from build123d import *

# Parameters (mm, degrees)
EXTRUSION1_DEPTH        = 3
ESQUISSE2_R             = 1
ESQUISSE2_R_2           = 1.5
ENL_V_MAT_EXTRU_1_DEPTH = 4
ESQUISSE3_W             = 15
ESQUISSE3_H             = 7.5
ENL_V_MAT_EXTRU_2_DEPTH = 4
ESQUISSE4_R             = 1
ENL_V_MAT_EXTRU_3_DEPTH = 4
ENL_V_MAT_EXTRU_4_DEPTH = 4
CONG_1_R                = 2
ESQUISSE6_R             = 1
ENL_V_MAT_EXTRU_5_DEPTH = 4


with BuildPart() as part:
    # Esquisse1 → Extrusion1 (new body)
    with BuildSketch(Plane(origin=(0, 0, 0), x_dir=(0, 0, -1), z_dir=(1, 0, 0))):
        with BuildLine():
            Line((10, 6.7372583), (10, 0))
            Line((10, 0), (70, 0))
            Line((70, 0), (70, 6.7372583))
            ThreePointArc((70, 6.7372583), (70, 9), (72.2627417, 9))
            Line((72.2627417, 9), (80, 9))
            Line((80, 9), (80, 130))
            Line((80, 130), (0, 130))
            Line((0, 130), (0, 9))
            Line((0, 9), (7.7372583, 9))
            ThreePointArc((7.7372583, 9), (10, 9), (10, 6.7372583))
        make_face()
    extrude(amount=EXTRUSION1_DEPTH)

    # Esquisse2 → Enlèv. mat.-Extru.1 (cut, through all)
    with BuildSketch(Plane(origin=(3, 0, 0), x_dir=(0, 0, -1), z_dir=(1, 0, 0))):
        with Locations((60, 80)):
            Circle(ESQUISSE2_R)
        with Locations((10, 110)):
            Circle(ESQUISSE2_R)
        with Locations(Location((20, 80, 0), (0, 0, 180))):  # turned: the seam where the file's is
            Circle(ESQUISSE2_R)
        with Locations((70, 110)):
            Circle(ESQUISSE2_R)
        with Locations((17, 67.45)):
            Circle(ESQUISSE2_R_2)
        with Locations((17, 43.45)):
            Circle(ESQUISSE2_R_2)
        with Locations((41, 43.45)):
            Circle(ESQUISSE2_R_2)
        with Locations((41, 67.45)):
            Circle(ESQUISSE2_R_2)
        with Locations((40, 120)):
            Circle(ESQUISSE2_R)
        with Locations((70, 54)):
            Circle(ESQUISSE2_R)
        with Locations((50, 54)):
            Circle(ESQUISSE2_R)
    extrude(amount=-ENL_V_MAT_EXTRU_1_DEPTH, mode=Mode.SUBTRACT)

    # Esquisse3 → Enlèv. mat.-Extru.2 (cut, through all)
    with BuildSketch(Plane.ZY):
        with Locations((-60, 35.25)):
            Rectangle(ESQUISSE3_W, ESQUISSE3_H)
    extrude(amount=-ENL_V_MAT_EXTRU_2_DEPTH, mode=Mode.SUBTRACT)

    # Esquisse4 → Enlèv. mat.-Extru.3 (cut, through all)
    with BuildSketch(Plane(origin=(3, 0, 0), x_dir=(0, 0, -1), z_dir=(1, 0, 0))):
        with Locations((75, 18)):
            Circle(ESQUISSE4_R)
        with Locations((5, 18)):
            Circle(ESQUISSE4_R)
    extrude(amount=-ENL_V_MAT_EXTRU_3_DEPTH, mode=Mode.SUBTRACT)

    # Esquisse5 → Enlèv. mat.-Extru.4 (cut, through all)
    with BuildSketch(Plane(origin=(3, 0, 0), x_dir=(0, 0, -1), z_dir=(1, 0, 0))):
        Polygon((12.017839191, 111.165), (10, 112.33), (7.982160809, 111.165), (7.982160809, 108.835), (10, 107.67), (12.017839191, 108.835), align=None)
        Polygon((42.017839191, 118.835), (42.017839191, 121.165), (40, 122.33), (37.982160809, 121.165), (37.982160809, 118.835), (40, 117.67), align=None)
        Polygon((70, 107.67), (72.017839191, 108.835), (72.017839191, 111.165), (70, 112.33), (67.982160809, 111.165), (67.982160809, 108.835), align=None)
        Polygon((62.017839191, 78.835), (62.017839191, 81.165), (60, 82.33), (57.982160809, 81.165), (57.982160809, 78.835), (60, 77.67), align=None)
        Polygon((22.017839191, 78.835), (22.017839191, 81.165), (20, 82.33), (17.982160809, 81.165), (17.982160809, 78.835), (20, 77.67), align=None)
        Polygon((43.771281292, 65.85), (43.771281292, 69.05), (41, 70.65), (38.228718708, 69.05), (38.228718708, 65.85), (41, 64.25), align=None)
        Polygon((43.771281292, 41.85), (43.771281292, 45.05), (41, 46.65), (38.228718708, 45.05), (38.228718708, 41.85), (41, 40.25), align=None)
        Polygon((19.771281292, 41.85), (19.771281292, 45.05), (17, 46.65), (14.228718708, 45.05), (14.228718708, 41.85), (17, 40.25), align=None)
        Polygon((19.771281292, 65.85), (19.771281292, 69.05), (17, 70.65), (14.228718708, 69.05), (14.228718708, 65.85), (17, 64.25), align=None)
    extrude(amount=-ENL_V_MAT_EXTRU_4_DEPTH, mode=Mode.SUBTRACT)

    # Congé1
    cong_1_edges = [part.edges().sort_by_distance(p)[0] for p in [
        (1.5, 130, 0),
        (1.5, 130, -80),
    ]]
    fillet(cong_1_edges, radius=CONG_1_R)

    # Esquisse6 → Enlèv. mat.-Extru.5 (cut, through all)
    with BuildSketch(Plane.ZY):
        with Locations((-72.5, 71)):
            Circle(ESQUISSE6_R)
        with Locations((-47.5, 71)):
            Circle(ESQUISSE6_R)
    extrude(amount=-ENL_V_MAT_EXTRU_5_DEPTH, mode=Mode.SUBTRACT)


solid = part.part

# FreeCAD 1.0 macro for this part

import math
import FreeCAD as App
import Part
import Sketcher
Q = App.Units.Quantity


def edges_at(feature, points):
    """Names of the edges that pass closest to the given points."""
    edges = feature.Shape.Edges
    near = lambda p: min(range(len(edges)), key=lambda i: edges[i].distToShape(Part.Vertex(*p))[0])
    return sorted({f"Edge{near(p) + 1}" for p in points})


def add_polygon(sketch, points):
    """Adds a closed chain of lines whose ends are joined by coincident constraints."""
    first, n = sketch.GeometryCount, len(points)
    for a, b in zip(points, points[1:] + points[:1]):
        sketch.addGeometry(Part.LineSegment(App.Vector(*a, 0), App.Vector(*b, 0)), False)
    for i in range(n):
        sketch.addConstraint(Sketcher.Constraint("Coincident", first + i, 2, first + (i + 1) % n, 1))

doc = App.newDocument("Part")
body = doc.addObject("PartDesign::Body", "Body")

sketch1 = body.newObject("Sketcher::SketchObject", "Sketch")
sketch1.AttachmentSupport = (doc.getObject("YZ_Plane"), [""])
sketch1.MapMode = "FlatFace"
sketch1.addGeometry(Part.LineSegment(App.Vector(6.737258, -10, 0), App.Vector(0, -10, 0)), False)
sketch1.addGeometry(Part.LineSegment(App.Vector(0, -10, 0), App.Vector(0, -70, 0)), False)
sketch1.addGeometry(Part.LineSegment(App.Vector(0, -70, 0), App.Vector(6.737258, -70, 0)), False)
sketch1.addGeometry(Part.ArcOfCircle(Part.Circle(App.Vector(7.868629, -71.131371, 0), App.Vector(0, 0, 1), 1.6), math.radians(-45), math.radians(135)), False)
sketch1.addGeometry(Part.LineSegment(App.Vector(9, -72.262742, 0), App.Vector(9, -80, 0)), False)
sketch1.addGeometry(Part.LineSegment(App.Vector(9, -80, 0), App.Vector(130, -80, 0)), False)
sketch1.addGeometry(Part.LineSegment(App.Vector(130, -80, 0), App.Vector(130, 0, 0)), False)
sketch1.addGeometry(Part.LineSegment(App.Vector(130, 0, 0), App.Vector(9, 0, 0)), False)
sketch1.addGeometry(Part.LineSegment(App.Vector(9, 0, 0), App.Vector(9, -7.737258, 0)), False)
sketch1.addGeometry(Part.ArcOfCircle(Part.Circle(App.Vector(7.868629, -8.868629, 0), App.Vector(0, 0, 1), 1.6), math.radians(-135), math.radians(45)), False)
sketch1.addConstraint(Sketcher.Constraint("Coincident", 0, 2, 1, 1))
sketch1.addConstraint(Sketcher.Constraint("Coincident", 1, 2, 2, 1))
sketch1.addConstraint(Sketcher.Constraint("Coincident", 2, 2, 3, 2))
sketch1.addConstraint(Sketcher.Constraint("Coincident", 3, 1, 4, 1))
sketch1.addConstraint(Sketcher.Constraint("Coincident", 4, 2, 5, 1))
sketch1.addConstraint(Sketcher.Constraint("Coincident", 5, 2, 6, 1))
sketch1.addConstraint(Sketcher.Constraint("Coincident", 6, 2, 7, 1))
sketch1.addConstraint(Sketcher.Constraint("Coincident", 7, 2, 8, 1))
sketch1.addConstraint(Sketcher.Constraint("Coincident", 8, 2, 9, 2))
sketch1.addConstraint(Sketcher.Constraint("Coincident", 9, 1, 0, 1))
sketch1.addConstraint(Sketcher.Constraint("Horizontal", 0))
sketch1.addConstraint(Sketcher.Constraint("Vertical", 1))
sketch1.addConstraint(Sketcher.Constraint("Horizontal", 2))
sketch1.addConstraint(Sketcher.Constraint("Vertical", 4))
sketch1.addConstraint(Sketcher.Constraint("Horizontal", 5))
sketch1.addConstraint(Sketcher.Constraint("Vertical", 6))
sketch1.addConstraint(Sketcher.Constraint("Horizontal", 7))
sketch1.addConstraint(Sketcher.Constraint("Vertical", 8))
sketch1.addConstraint(Sketcher.Constraint("Equal", 3, 9))
sketch1.addConstraint(Sketcher.Constraint("PointOnObject", 0, 2, -2))
sketch1.addConstraint(Sketcher.Constraint("PointOnObject", 6, 2, -1))
sketch1.addConstraint(Sketcher.Constraint("Vertical", 3, 3, 9, 3))
sketch1.addConstraint(Sketcher.Constraint("Vertical", 4, 2, 7, 2))
sketch1.addConstraint(Sketcher.Constraint("Vertical", 2, 2, 9, 1))
sketch1.addConstraint(Sketcher.Constraint("Equal", 4, 8))
sketch1.addConstraint(Sketcher.Constraint("Radius", 3, 1.6))
sketch1.addConstraint(Sketcher.Constraint("DistanceX", 5, 1, 5, 2, 121.0))
sketch1.addConstraint(Sketcher.Constraint("DistanceY", 1, 2, 1, 1, 60.0))
sketch1.addConstraint(Sketcher.Constraint("DistanceY", 6, 1, 6, 2, 80.0))
sketch1.addConstraint(Sketcher.Constraint("DistanceX", -1, 1, 3, 1, 9.0))
sketch1.addConstraint(Sketcher.Constraint("DistanceX", 0, 2, 0, 1, 6.737258))
sketch1.addConstraint(Sketcher.Constraint("DistanceX", -1, 1, 3, 3, 7.868629))
pad1 = body.newObject("PartDesign::Pad", "Pad")
pad1.Profile = sketch1
pad1.Length = 3

sketch2 = body.newObject("Sketcher::SketchObject", "Sketch001")
sketch2.AttachmentSupport = (doc.getObject("YZ_Plane"), [""])
sketch2.MapMode = "FlatFace"
sketch2.AttachmentOffset = App.Placement(App.Vector(0, 0, 3), App.Rotation())
sketch2.addGeometry(Part.Circle(App.Vector(80, -60, 0), App.Vector(0, 0, 1), 1), False)
sketch2.addGeometry(Part.Circle(App.Vector(110, -10, 0), App.Vector(0, 0, 1), 1), False)
sketch2.addGeometry(Part.Circle(App.Vector(80, -20, 0), App.Vector(0, 0, 1), 1), False)
sketch2.addGeometry(Part.Circle(App.Vector(110, -70, 0), App.Vector(0, 0, 1), 1), False)
sketch2.addGeometry(Part.Circle(App.Vector(67.45, -17, 0), App.Vector(0, 0, 1), 1.5), False)
sketch2.addGeometry(Part.Circle(App.Vector(43.45, -17, 0), App.Vector(0, 0, 1), 1.5), False)
sketch2.addGeometry(Part.Circle(App.Vector(43.45, -41, 0), App.Vector(0, 0, 1), 1.5), False)
sketch2.addGeometry(Part.Circle(App.Vector(67.45, -41, 0), App.Vector(0, 0, 1), 1.5), False)
sketch2.addGeometry(Part.Circle(App.Vector(120, -40, 0), App.Vector(0, 0, 1), 1), False)
sketch2.addGeometry(Part.Circle(App.Vector(54, -70, 0), App.Vector(0, 0, 1), 1), False)
sketch2.addGeometry(Part.Circle(App.Vector(54, -50, 0), App.Vector(0, 0, 1), 1), False)
sketch2.addConstraint(Sketcher.Constraint("Equal", 0, 1))
sketch2.addConstraint(Sketcher.Constraint("Equal", 1, 2))
sketch2.addConstraint(Sketcher.Constraint("Equal", 2, 3))
sketch2.addConstraint(Sketcher.Constraint("Equal", 4, 5))
sketch2.addConstraint(Sketcher.Constraint("Equal", 5, 6))
sketch2.addConstraint(Sketcher.Constraint("Equal", 6, 7))
sketch2.addConstraint(Sketcher.Constraint("Equal", 3, 8))
sketch2.addConstraint(Sketcher.Constraint("Equal", 8, 9))
sketch2.addConstraint(Sketcher.Constraint("Equal", 9, 10))
sketch2.addConstraint(Sketcher.Constraint("Horizontal", 4, 3, 5, 3))
sketch2.addConstraint(Sketcher.Constraint("Horizontal", 6, 3, 7, 3))
sketch2.addConstraint(Sketcher.Constraint("Horizontal", 3, 3, 9, 3))
sketch2.addConstraint(Sketcher.Constraint("Vertical", 0, 3, 2, 3))
sketch2.addConstraint(Sketcher.Constraint("Vertical", 1, 3, 3, 3))
sketch2.addConstraint(Sketcher.Constraint("Vertical", 5, 3, 6, 3))
sketch2.addConstraint(Sketcher.Constraint("Vertical", 4, 3, 7, 3))
sketch2.addConstraint(Sketcher.Constraint("Vertical", 9, 3, 10, 3))
sketch2.addConstraint(Sketcher.Constraint("Diameter", 0, 2.0))
sketch2.addConstraint(Sketcher.Constraint("Diameter", 4, 3.0))
sketch2.addConstraint(Sketcher.Constraint("DistanceX", -1, 1, 0, 3, 80.0))
sketch2.addConstraint(Sketcher.Constraint("DistanceY", 0, 3, -1, 1, 60.0))
sketch2.addConstraint(Sketcher.Constraint("DistanceX", -1, 1, 1, 3, 110.0))
sketch2.addConstraint(Sketcher.Constraint("DistanceY", 1, 3, -1, 1, 10.0))
sketch2.addConstraint(Sketcher.Constraint("DistanceY", 2, 3, -1, 1, 20.0))
sketch2.addConstraint(Sketcher.Constraint("DistanceY", 3, 3, -1, 1, 70.0))
sketch2.addConstraint(Sketcher.Constraint("DistanceY", 4, 3, -1, 1, 17.0))
sketch2.addConstraint(Sketcher.Constraint("DistanceY", 6, 3, -1, 1, 41.0))
sketch2.addConstraint(Sketcher.Constraint("DistanceX", -1, 1, 8, 3, 120.0))
sketch2.addConstraint(Sketcher.Constraint("DistanceY", 8, 3, -1, 1, 40.0))
sketch2.addConstraint(Sketcher.Constraint("DistanceX", -1, 1, 9, 3, 54.0))
sketch2.addConstraint(Sketcher.Constraint("DistanceY", 10, 3, -1, 1, 50.0))
sketch2.addConstraint(Sketcher.Constraint("DistanceX", 5, 3, 4, 3, 24.0))
sketch2.addConstraint(Sketcher.Constraint("DistanceX", -1, 1, 4, 3, 67.45))
pocket1 = body.newObject("PartDesign::Pocket", "Pocket")
pocket1.Profile = sketch2
pocket1.Type = "ThroughAll"

sketch3 = body.newObject("Sketcher::SketchObject", "Sketch002")
sketch3.AttachmentSupport = (doc.getObject("YZ_Plane"), [""])
sketch3.MapMode = "FlatFace"
add_polygon(sketch3, [(39, -67.5), (31.5, -67.5), (31.5, -52.5), (39, -52.5)])
sketch3.addConstraint(Sketcher.Constraint("Horizontal", 0))
sketch3.addConstraint(Sketcher.Constraint("Vertical", 1))
sketch3.addConstraint(Sketcher.Constraint("Horizontal", 2))
sketch3.addConstraint(Sketcher.Constraint("Vertical", 3))
sketch3.addConstraint(Sketcher.Constraint("DistanceY", 1, 1, 1, 2, 15.0))
sketch3.addConstraint(Sketcher.Constraint("DistanceX", 0, 2, 0, 1, 7.5))
sketch3.addConstraint(Sketcher.Constraint("DistanceX", -1, 1, 2, 2, 39.0))
sketch3.addConstraint(Sketcher.Constraint("DistanceY", 0, 2, -1, 1, 67.5))
pocket2 = body.newObject("PartDesign::Pocket", "Pocket001")
pocket2.Profile = sketch3
pocket2.Type = "ThroughAll"
pocket2.Reversed = True

sketch4 = body.newObject("Sketcher::SketchObject", "Sketch003")
sketch4.AttachmentSupport = (doc.getObject("YZ_Plane"), [""])
sketch4.MapMode = "FlatFace"
sketch4.AttachmentOffset = App.Placement(App.Vector(0, 0, 3), App.Rotation())
sketch4.addGeometry(Part.Circle(App.Vector(18, -75, 0), App.Vector(0, 0, 1), 1), False)
sketch4.addGeometry(Part.Circle(App.Vector(18, -5, 0), App.Vector(0, 0, 1), 1), False)
sketch4.addConstraint(Sketcher.Constraint("Equal", 0, 1))
sketch4.addConstraint(Sketcher.Constraint("Vertical", 0, 3, 1, 3))
sketch4.addConstraint(Sketcher.Constraint("Diameter", 0, 2.0))
sketch4.addConstraint(Sketcher.Constraint("DistanceX", -1, 1, 0, 3, 18.0))
sketch4.addConstraint(Sketcher.Constraint("DistanceY", 0, 3, -1, 1, 75.0))
sketch4.addConstraint(Sketcher.Constraint("DistanceY", 1, 3, -1, 1, 5.0))
pocket3 = body.newObject("PartDesign::Pocket", "Pocket002")
pocket3.Profile = sketch4
pocket3.Type = "ThroughAll"

sketch5 = body.newObject("Sketcher::SketchObject", "Sketch004")
sketch5.AttachmentSupport = (doc.getObject("YZ_Plane"), [""])
sketch5.MapMode = "FlatFace"
sketch5.AttachmentOffset = App.Placement(App.Vector(0, 0, 3), App.Rotation())
add_polygon(sketch5, [(111.165, -12.017839), (112.33, -10), (111.165, -7.982161), (108.835, -7.982161), (107.67, -10), (108.835, -12.017839)])
add_polygon(sketch5, [(118.835, -42.017839), (121.165, -42.017839), (122.33, -40), (121.165, -37.982161), (118.835, -37.982161), (117.67, -40)])
add_polygon(sketch5, [(107.67, -70), (108.835, -72.017839), (111.165, -72.017839), (112.33, -70), (111.165, -67.982161), (108.835, -67.982161)])
add_polygon(sketch5, [(78.835, -62.017839), (81.165, -62.017839), (82.33, -60), (81.165, -57.982161), (78.835, -57.982161), (77.67, -60)])
add_polygon(sketch5, [(78.835, -22.017839), (81.165, -22.017839), (82.33, -20), (81.165, -17.982161), (78.835, -17.982161), (77.67, -20)])
add_polygon(sketch5, [(65.85, -43.771281), (69.05, -43.771281), (70.65, -41), (69.05, -38.228719), (65.85, -38.228719), (64.25, -41)])
add_polygon(sketch5, [(41.85, -43.771281), (45.05, -43.771281), (46.65, -41), (45.05, -38.228719), (41.85, -38.228719), (40.25, -41)])
add_polygon(sketch5, [(41.85, -19.771281), (45.05, -19.771281), (46.65, -17), (45.05, -14.228719), (41.85, -14.228719), (40.25, -17)])
add_polygon(sketch5, [(65.85, -19.771281), (69.05, -19.771281), (70.65, -17), (69.05, -14.228719), (65.85, -14.228719), (64.25, -17)])
sketch5.addConstraint(Sketcher.Constraint("Horizontal", 2))
sketch5.addConstraint(Sketcher.Constraint("Horizontal", 5))
sketch5.addConstraint(Sketcher.Constraint("Horizontal", 6))
sketch5.addConstraint(Sketcher.Constraint("Horizontal", 9))
sketch5.addConstraint(Sketcher.Constraint("Horizontal", 13))
sketch5.addConstraint(Sketcher.Constraint("Horizontal", 16))
sketch5.addConstraint(Sketcher.Constraint("Horizontal", 18))
sketch5.addConstraint(Sketcher.Constraint("Horizontal", 21))
sketch5.addConstraint(Sketcher.Constraint("Horizontal", 24))
sketch5.addConstraint(Sketcher.Constraint("Horizontal", 27))
sketch5.addConstraint(Sketcher.Constraint("Horizontal", 30))
sketch5.addConstraint(Sketcher.Constraint("Horizontal", 33))
sketch5.addConstraint(Sketcher.Constraint("Horizontal", 36))
sketch5.addConstraint(Sketcher.Constraint("Horizontal", 39))
sketch5.addConstraint(Sketcher.Constraint("Horizontal", 42))
sketch5.addConstraint(Sketcher.Constraint("Horizontal", 45))
sketch5.addConstraint(Sketcher.Constraint("Horizontal", 48))
sketch5.addConstraint(Sketcher.Constraint("Horizontal", 51))
sketch5.addConstraint(Sketcher.Constraint("Parallel", 0, 3))
sketch5.addConstraint(Sketcher.Constraint("Parallel", 1, 4))
sketch5.addConstraint(Sketcher.Constraint("Parallel", 3, 7))
sketch5.addConstraint(Sketcher.Constraint("Parallel", 4, 8))
sketch5.addConstraint(Sketcher.Constraint("Parallel", 7, 10))
sketch5.addConstraint(Sketcher.Constraint("Parallel", 8, 11))
sketch5.addConstraint(Sketcher.Constraint("Parallel", 11, 12))
sketch5.addConstraint(Sketcher.Constraint("Parallel", 10, 14))
sketch5.addConstraint(Sketcher.Constraint("Parallel", 12, 15))
sketch5.addConstraint(Sketcher.Constraint("Parallel", 14, 17))
sketch5.addConstraint(Sketcher.Constraint("Parallel", 17, 19))
sketch5.addConstraint(Sketcher.Constraint("Parallel", 15, 20))
sketch5.addConstraint(Sketcher.Constraint("Parallel", 19, 22))
sketch5.addConstraint(Sketcher.Constraint("Parallel", 20, 23))
sketch5.addConstraint(Sketcher.Constraint("Parallel", 22, 25))
sketch5.addConstraint(Sketcher.Constraint("Parallel", 23, 26))
sketch5.addConstraint(Sketcher.Constraint("Parallel", 25, 28))
sketch5.addConstraint(Sketcher.Constraint("Parallel", 26, 29))
sketch5.addConstraint(Sketcher.Constraint("Parallel", 28, 31))
sketch5.addConstraint(Sketcher.Constraint("Parallel", 29, 32))
sketch5.addConstraint(Sketcher.Constraint("Parallel", 31, 34))
sketch5.addConstraint(Sketcher.Constraint("Parallel", 32, 35))
sketch5.addConstraint(Sketcher.Constraint("Parallel", 34, 37))
sketch5.addConstraint(Sketcher.Constraint("Parallel", 35, 38))
sketch5.addConstraint(Sketcher.Constraint("Parallel", 37, 40))
sketch5.addConstraint(Sketcher.Constraint("Parallel", 38, 41))
sketch5.addConstraint(Sketcher.Constraint("Parallel", 40, 43))
sketch5.addConstraint(Sketcher.Constraint("Parallel", 41, 44))
sketch5.addConstraint(Sketcher.Constraint("Parallel", 43, 46))
sketch5.addConstraint(Sketcher.Constraint("Parallel", 44, 47))
sketch5.addConstraint(Sketcher.Constraint("Parallel", 46, 49))
sketch5.addConstraint(Sketcher.Constraint("Parallel", 47, 50))
sketch5.addConstraint(Sketcher.Constraint("Parallel", 49, 52))
sketch5.addConstraint(Sketcher.Constraint("Parallel", 50, 53))
sketch5.addConstraint(Sketcher.Constraint("Horizontal", 0, 2, 3, 2))
sketch5.addConstraint(Sketcher.Constraint("Horizontal", 7, 2, 10, 2))
sketch5.addConstraint(Sketcher.Constraint("Horizontal", 14, 2, 17, 2))
sketch5.addConstraint(Sketcher.Constraint("Horizontal", 19, 2, 22, 2))
sketch5.addConstraint(Sketcher.Constraint("Horizontal", 25, 2, 28, 2))
sketch5.addConstraint(Sketcher.Constraint("Horizontal", 31, 2, 34, 2))
sketch5.addConstraint(Sketcher.Constraint("Horizontal", 35, 2, 36, 2))
sketch5.addConstraint(Sketcher.Constraint("Horizontal", 34, 2, 37, 2))
sketch5.addConstraint(Sketcher.Constraint("Horizontal", 33, 2, 38, 2))
sketch5.addConstraint(Sketcher.Constraint("Horizontal", 37, 2, 40, 2))
sketch5.addConstraint(Sketcher.Constraint("Horizontal", 43, 2, 46, 2))
sketch5.addConstraint(Sketcher.Constraint("Horizontal", 47, 2, 48, 2))
sketch5.addConstraint(Sketcher.Constraint("Horizontal", 46, 2, 49, 2))
sketch5.addConstraint(Sketcher.Constraint("Horizontal", 45, 2, 50, 2))
sketch5.addConstraint(Sketcher.Constraint("Horizontal", 49, 2, 52, 2))
sketch5.addConstraint(Sketcher.Constraint("Vertical", 2, 2, 4, 2))
sketch5.addConstraint(Sketcher.Constraint("Vertical", 1, 2, 5, 2))
sketch5.addConstraint(Sketcher.Constraint("Vertical", 6, 2, 8, 2))
sketch5.addConstraint(Sketcher.Constraint("Vertical", 4, 2, 12, 2))
sketch5.addConstraint(Sketcher.Constraint("Vertical", 5, 2, 13, 2))
sketch5.addConstraint(Sketcher.Constraint("Vertical", 0, 2, 14, 2))
sketch5.addConstraint(Sketcher.Constraint("Vertical", 13, 2, 15, 2))
sketch5.addConstraint(Sketcher.Constraint("Vertical", 18, 2, 20, 2))
sketch5.addConstraint(Sketcher.Constraint("Vertical", 20, 2, 24, 2))
sketch5.addConstraint(Sketcher.Constraint("Vertical", 19, 2, 25, 2))
sketch5.addConstraint(Sketcher.Constraint("Vertical", 24, 2, 26, 2))
sketch5.addConstraint(Sketcher.Constraint("Vertical", 23, 2, 27, 2))
sketch5.addConstraint(Sketcher.Constraint("Vertical", 30, 2, 32, 2))
sketch5.addConstraint(Sketcher.Constraint("Vertical", 38, 2, 42, 2))
sketch5.addConstraint(Sketcher.Constraint("Vertical", 37, 2, 43, 2))
sketch5.addConstraint(Sketcher.Constraint("Vertical", 42, 2, 44, 2))
sketch5.addConstraint(Sketcher.Constraint("Vertical", 41, 2, 45, 2))
sketch5.addConstraint(Sketcher.Constraint("Vertical", 32, 2, 48, 2))
sketch5.addConstraint(Sketcher.Constraint("Vertical", 35, 2, 51, 2))
sketch5.addConstraint(Sketcher.Constraint("Equal", 5, 6))
sketch5.addConstraint(Sketcher.Constraint("Equal", 16, 18))
sketch5.addConstraint(Sketcher.Constraint("Equal", 33, 36))
sketch5.addConstraint(Sketcher.Constraint("Equal", 4, 7))
sketch5.addConstraint(Sketcher.Constraint("Equal", 17, 19))
sketch5.addConstraint(Sketcher.Constraint("Angle", 0, Q("60 deg")))
sketch5.addConstraint(Sketcher.Constraint("DistanceX", 30, 1, 30, 2, 3.2))
sketch5.addConstraint(Sketcher.Constraint("DistanceY", 0, 2, -1, 1, 10.0))
sketch5.addConstraint(Sketcher.Constraint("DistanceY", 7, 2, -1, 1, 40.0))
sketch5.addConstraint(Sketcher.Constraint("DistanceY", 14, 2, -1, 1, 70.0))
sketch5.addConstraint(Sketcher.Constraint("DistanceY", 19, 2, -1, 1, 60.0))
sketch5.addConstraint(Sketcher.Constraint("DistanceY", 25, 2, -1, 1, 20.0))
sketch5.addConstraint(Sketcher.Constraint("DistanceY", 31, 2, -1, 1, 41.0))
sketch5.addConstraint(Sketcher.Constraint("DistanceY", 43, 2, -1, 1, 17.0))
sketch5.addConstraint(Sketcher.Constraint("DistanceX", 5, 2, 6, 2, 10.0))
sketch5.addConstraint(Sketcher.Constraint("DistanceX", 18, 2, 15, 2, 30.0))
sketch5.addConstraint(Sketcher.Constraint("DistanceX", 36, 2, 30, 2, 24.0))
sketch5.addConstraint(Sketcher.Constraint("Distance", 31, 3.2))
sketch5.addConstraint(Sketcher.Constraint("DistanceX", 2, 2, 2, 1, 2.33))
sketch5.addConstraint(Sketcher.Constraint("Distance", 0, 2.33))
sketch5.addConstraint(Sketcher.Constraint("DistanceX", -1, 1, 0, 2, 112.33))
sketch5.addConstraint(Sketcher.Constraint("DistanceX", -1, 1, 30, 2, 69.05))
pocket4 = body.newObject("PartDesign::Pocket", "Pocket003")
pocket4.Profile = sketch5
pocket4.Type = "ThroughAll"
doc.recompute()

fillet = body.newObject("PartDesign::Fillet", "Fillet")
fillet.Base = (pocket4, edges_at(pocket4, [(1.5, 130, 0), (1.5, 130, -80)]))
fillet.Radius = 2

sketch6 = body.newObject("Sketcher::SketchObject", "Sketch005")
sketch6.AttachmentSupport = (doc.getObject("YZ_Plane"), [""])
sketch6.MapMode = "FlatFace"
sketch6.addGeometry(Part.Circle(App.Vector(71, -72.5, 0), App.Vector(0, 0, 1), 1), False)
sketch6.addGeometry(Part.Circle(App.Vector(71, -47.5, 0), App.Vector(0, 0, 1), 1), False)
sketch6.addConstraint(Sketcher.Constraint("Equal", 0, 1))
sketch6.addConstraint(Sketcher.Constraint("Vertical", 0, 3, 1, 3))
sketch6.addConstraint(Sketcher.Constraint("Diameter", 0, 2.0))
sketch6.addConstraint(Sketcher.Constraint("DistanceX", -1, 1, 0, 3, 71.0))
sketch6.addConstraint(Sketcher.Constraint("DistanceY", 0, 3, 1, 3, 25.0))
sketch6.addConstraint(Sketcher.Constraint("DistanceY", 0, 3, -1, 1, 72.5))
pocket5 = body.newObject("PartDesign::Pocket", "Pocket004")
pocket5.Profile = sketch6
pocket5.Type = "ThroughAll"
pocket5.Reversed = True

doc.recompute()
